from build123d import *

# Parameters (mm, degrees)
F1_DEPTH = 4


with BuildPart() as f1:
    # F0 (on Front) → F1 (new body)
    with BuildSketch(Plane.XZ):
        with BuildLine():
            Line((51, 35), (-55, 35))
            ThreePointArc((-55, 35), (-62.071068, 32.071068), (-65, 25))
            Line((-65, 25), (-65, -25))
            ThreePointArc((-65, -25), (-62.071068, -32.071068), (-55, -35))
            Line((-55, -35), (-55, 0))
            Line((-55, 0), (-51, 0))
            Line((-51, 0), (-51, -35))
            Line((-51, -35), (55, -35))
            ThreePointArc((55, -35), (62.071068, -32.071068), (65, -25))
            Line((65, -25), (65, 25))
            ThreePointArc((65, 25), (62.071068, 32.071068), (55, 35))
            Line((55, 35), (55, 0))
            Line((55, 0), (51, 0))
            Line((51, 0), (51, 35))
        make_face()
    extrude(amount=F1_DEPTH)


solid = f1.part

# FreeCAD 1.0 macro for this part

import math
import FreeCAD as App
import Part
import Sketcher

doc = App.newDocument("Part")
body = doc.addObject("PartDesign::Body", "Body")

# Sketch on XZ plane
sketch1 = doc.addObject("Sketcher::SketchObject", "Sketch")
body.addObject(sketch1)
sketch1.AttachmentSupport = (doc.XZ_Plane, [""])
sketch1.MapMode = "FlatFace"
sketch1.addGeometry([
    Part.LineSegment(App.Vector(51, 35, 0), App.Vector(-55, 35, 0)),  # 0
    Part.ArcOfCircle(Part.Circle(App.Vector(-55, 25, 0), App.Vector(0, 0, 1), 10), math.radians(90), math.radians(180)),  # 1
    Part.LineSegment(App.Vector(-65, 25, 0), App.Vector(-65, -25, 0)),  # 2
    Part.ArcOfCircle(Part.Circle(App.Vector(-55, -25, 0), App.Vector(0, 0, 1), 10), math.radians(180), math.radians(270)),  # 3
    Part.LineSegment(App.Vector(-55, -35, 0), App.Vector(-55, 0, 0)),  # 4
    Part.LineSegment(App.Vector(-55, 0, 0), App.Vector(-51, 0, 0)),  # 5
    Part.LineSegment(App.Vector(-51, 0, 0), App.Vector(-51, -35, 0)),  # 6
    Part.LineSegment(App.Vector(-51, -35, 0), App.Vector(55, -35, 0)),  # 7
    Part.ArcOfCircle(Part.Circle(App.Vector(55, -25, 0), App.Vector(0, 0, 1), 10), math.radians(-90), math.radians(0)),  # 8
    Part.LineSegment(App.Vector(65, -25, 0), App.Vector(65, 25, 0)),  # 9
    Part.ArcOfCircle(Part.Circle(App.Vector(55, 25, 0), App.Vector(0, 0, 1), 10), math.radians(0), math.radians(90)),  # 10
    Part.LineSegment(App.Vector(55, 35, 0), App.Vector(55, 0, 0)),  # 11
    Part.LineSegment(App.Vector(55, 0, 0), App.Vector(51, 0, 0)),  # 12
    Part.LineSegment(App.Vector(51, 0, 0), App.Vector(51, 35, 0)),  # 13
], False)
sketch1.addConstraint([
    Sketcher.Constraint("Tangent", 0, 2, 1, 1),
    Sketcher.Constraint("Tangent", 1, 2, 2, 1),
    Sketcher.Constraint("Tangent", 2, 2, 3, 1),
    Sketcher.Constraint("Coincident", 3, 2, 4, 1),
    Sketcher.Constraint("Coincident", 4, 2, 5, 1),
    Sketcher.Constraint("Coincident", 5, 2, 6, 1),
    Sketcher.Constraint("Coincident", 6, 2, 7, 1),
    Sketcher.Constraint("Tangent", 7, 2, 8, 1),
    Sketcher.Constraint("Tangent", 8, 2, 9, 1),
    Sketcher.Constraint("Tangent", 9, 2, 10, 1),
    Sketcher.Constraint("Coincident", 10, 2, 11, 1),
    Sketcher.Constraint("Coincident", 11, 2, 12, 1),
    Sketcher.Constraint("Coincident", 12, 2, 13, 1),
    Sketcher.Constraint("Coincident", 13, 2, 0, 1),
    Sketcher.Constraint("Horizontal", 0),
    Sketcher.Constraint("Vertical", 2),
    Sketcher.Constraint("Vertical", 4),
    Sketcher.Constraint("Horizontal", 5),
    Sketcher.Constraint("Vertical", 6),
    Sketcher.Constraint("Horizontal", 7),
    Sketcher.Constraint("Vertical", 9),
    Sketcher.Constraint("Vertical", 11),
    Sketcher.Constraint("Horizontal", 12),
    Sketcher.Constraint("Vertical", 13),
    Sketcher.Constraint("Equal", 1, 3),
    Sketcher.Constraint("Equal", 3, 8),
    Sketcher.Constraint("Equal", 8, 10),
    Sketcher.Constraint("Symmetric", 1, 3, 8, 3, -1, 1),
    Sketcher.Constraint("Symmetric", 3, 2, 10, 2, -1, 1),
    Sketcher.Constraint("Symmetric", 5, 2, 12, 2, -1, 1),
    Sketcher.Constraint("Symmetric", 3, 2, 7, 2, -2),
    Sketcher.Constraint("PointOnObject", 4, 2, -1),
    Sketcher.Constraint("Radius", 1, 9.999999),
    Sketcher.Constraint("DistanceX", 0, 2, 0, 1, 106.0),
    Sketcher.Constraint("DistanceX", 5, 1, 5, 2, 4.0),
    Sketcher.Constraint("DistanceY", 2, 2, 2, 1, 50.0),
])
pad1 = doc.addObject("PartDesign::Pad", "Pad")
body.addObject(pad1)
pad1.Profile = sketch1
pad1.Length = 4

doc.recompute()
